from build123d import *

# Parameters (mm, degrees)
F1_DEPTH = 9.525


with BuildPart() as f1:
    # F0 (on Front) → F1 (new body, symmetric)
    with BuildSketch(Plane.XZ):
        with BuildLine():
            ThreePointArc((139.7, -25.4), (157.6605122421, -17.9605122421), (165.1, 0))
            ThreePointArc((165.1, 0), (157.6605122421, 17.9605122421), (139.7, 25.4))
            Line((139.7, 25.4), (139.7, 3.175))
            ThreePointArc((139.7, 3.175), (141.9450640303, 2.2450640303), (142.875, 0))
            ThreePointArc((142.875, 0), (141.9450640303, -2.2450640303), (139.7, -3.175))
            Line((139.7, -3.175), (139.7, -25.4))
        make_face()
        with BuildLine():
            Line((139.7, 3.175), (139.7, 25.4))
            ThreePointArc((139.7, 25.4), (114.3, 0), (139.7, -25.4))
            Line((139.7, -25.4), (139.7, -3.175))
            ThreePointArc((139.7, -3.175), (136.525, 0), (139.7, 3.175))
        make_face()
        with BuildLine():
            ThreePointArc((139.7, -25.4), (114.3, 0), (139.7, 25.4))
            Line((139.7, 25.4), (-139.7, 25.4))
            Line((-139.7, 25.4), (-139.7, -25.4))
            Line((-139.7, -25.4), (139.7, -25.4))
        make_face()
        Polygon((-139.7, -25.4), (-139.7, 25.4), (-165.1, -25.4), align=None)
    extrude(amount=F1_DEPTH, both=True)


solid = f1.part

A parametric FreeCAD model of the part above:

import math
import FreeCAD as App
import Part
import Sketcher
from FreeCAD import Vector
Q = App.Units.Quantity

doc = App.newDocument("Part")
params = doc.addObject("Spreadsheet::Sheet", "Params")
for row, (alias, value) in enumerate([
    ("sketch1_radius", "1 in"),
    ("sketch1_width", "11 in"),
    ("sketch1_width2", "12 in"),
    ("sketch1_radius2", "0.125 in"),
    ("pad1_length", "0.75 in"),
], start=1):
    params.set(f"A{row}", alias)
    params.set(f"B{row}", "=" + value)
    params.setAlias(f"B{row}", alias)

body = doc.addObject("PartDesign::Body", "Body")

sketch1 = body.newObject("Sketcher::SketchObject", "Sketch")
sketch1.AttachmentSupport = (doc.getObject("XZ_Plane"), [""])
sketch1.MapMode = "FlatFace"
sketch1.addGeometry(Part.ArcOfCircle(Part.Circle(Vector(139.7, 0, 0), Vector(0, 0, 1), 25.4), math.radians(-90), math.radians(0)), False)
sketch1.addGeometry(Part.ArcOfCircle(Part.Circle(Vector(139.7, 0, 0), Vector(0, 0, 1), 25.4), math.radians(0), math.radians(90)), False)
sketch1.addGeometry(Part.LineSegment(Vector(139.7, 25.4, 0), Vector(-139.7, 25.4, 0)), False)
sketch1.addGeometry(Part.LineSegment(Vector(-139.7, 25.4, 0), Vector(-165.1, -25.4, 0)), False)
sketch1.addGeometry(Part.LineSegment(Vector(-165.1, -25.4, 0), Vector(139.7, -25.4, 0)), False)
sketch1.addGeometry(Part.ArcOfCircle(Part.Circle(Vector(139.7, 0, 0), Vector(0, 0, 1), 3.175), math.radians(0), math.radians(90)), False)
sketch1.addGeometry(Part.ArcOfCircle(Part.Circle(Vector(139.7, 0, 0), Vector(0, 0, 1), 3.175), math.radians(-90), math.radians(0)), False)
sketch1.addGeometry(Part.ArcOfCircle(Part.Circle(Vector(139.7, 0, 0), Vector(0, 0, 1), 3.175), math.radians(90), math.radians(270)), False)
sketch1.addConstraint(Sketcher.Constraint("Tangent", 0, 2, 1, 1))
sketch1.addConstraint(Sketcher.Constraint("Tangent", 1, 2, 2, 1))
sketch1.addConstraint(Sketcher.Constraint("Coincident", 2, 2, 3, 1))
sketch1.addConstraint(Sketcher.Constraint("Coincident", 3, 2, 4, 1))
sketch1.addConstraint(Sketcher.Constraint("Tangent", 4, 2, 0, 1))
sketch1.addConstraint(Sketcher.Constraint("Tangent", 5, 1, 6, 2))
sketch1.addConstraint(Sketcher.Constraint("Tangent", 6, 1, 7, 2))
sketch1.addConstraint(Sketcher.Constraint("Tangent", 7, 1, 5, 2))
sketch1.addConstraint(Sketcher.Constraint("Horizontal", 2))
sketch1.addConstraint(Sketcher.Constraint("Horizontal", 4))
sketch1.addConstraint(Sketcher.Constraint("Coincident", 5, 3, 0, 3))
sketch1.addConstraint(Sketcher.Constraint("Equal", 0, 1))
sketch1.addConstraint(Sketcher.Constraint("Symmetric", 2, 2, 4, 2, -1, 1))
sketch1.addConstraint(Sketcher.Constraint("PointOnObject", 0, 2, -1))
sketch1.addConstraint(Sketcher.Constraint("PointOnObject", 5, 1, -1))
sketch1.addConstraint(Sketcher.Constraint("Vertical", 4, 2, 6, 1))
sketch1.addConstraint(Sketcher.Constraint("Vertical", 6, 1, 7, 1))
sketch1.addConstraint(Sketcher.Constraint("Radius", 0, Q("1 in")))
sketch1.addConstraint(Sketcher.Constraint("DistanceX", 2, 2, 2, 1, Q("11 in")))
sketch1.addConstraint(Sketcher.Constraint("DistanceX", 4, 1, 4, 2, Q("12 in")))
sketch1.addConstraint(Sketcher.Constraint("Radius", 5, Q("0.125 in")))
sketch1.setExpression("Constraints[17]", "Params.sketch1_radius")
sketch1.setExpression("Constraints[18]", "Params.sketch1_width")
sketch1.setExpression("Constraints[19]", "Params.sketch1_width2")
sketch1.setExpression("Constraints[20]", "Params.sketch1_radius2")
pad1 = body.newObject("PartDesign::Pad", "Pad")
pad1.Profile = sketch1
pad1.setExpression("Length", "Params.pad1_length")
pad1.Midplane = True

doc.recompute()
